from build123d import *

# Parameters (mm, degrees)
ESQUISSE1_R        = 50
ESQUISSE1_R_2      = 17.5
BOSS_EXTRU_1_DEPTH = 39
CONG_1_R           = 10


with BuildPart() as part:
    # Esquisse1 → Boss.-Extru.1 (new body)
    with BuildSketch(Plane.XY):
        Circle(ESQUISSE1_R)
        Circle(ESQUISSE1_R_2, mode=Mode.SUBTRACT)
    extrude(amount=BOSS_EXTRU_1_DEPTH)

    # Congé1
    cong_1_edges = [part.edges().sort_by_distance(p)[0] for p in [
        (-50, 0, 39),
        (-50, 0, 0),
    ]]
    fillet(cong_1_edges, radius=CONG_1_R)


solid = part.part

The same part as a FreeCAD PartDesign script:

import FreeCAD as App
import Part
import Sketcher


def edges_at(feature, points):
    """Names of the edges that pass closest to the given points."""
    edges = feature.Shape.Edges
    near = lambda p: min(range(len(edges)), key=lambda i: edges[i].distToShape(Part.Vertex(*p))[0])
    return sorted({f"Edge{near(p) + 1}" for p in points})

doc = App.newDocument("Part")
params = doc.addObject("Spreadsheet::Sheet", "Params")
for row, (alias, value) in enumerate([
    ("sketch1_diameter", "100 mm"),
    ("sketch1_diameter2", "35 mm"),
    ("pad1_length", "39 mm"),
    ("fillet_radius", "10 mm"),
], start=1):
    params.set(f"A{row}", alias)
    params.set(f"B{row}", "=" + value)
    params.setAlias(f"B{row}", alias)

body = doc.addObject("PartDesign::Body", "Body")

sketch1 = body.newObject("Sketcher::SketchObject", "Sketch")
sketch1.AttachmentSupport = (doc.getObject("XY_Plane"), [""])
sketch1.MapMode = "FlatFace"
sketch1.addGeometry([
    Part.Circle(App.Vector(0, 0, 0), App.Vector(0, 0, 1), 50),
    Part.Circle(App.Vector(0, 0, 0), App.Vector(0, 0, 1), 18),
], False)
sketch1.addConstraint([
    Sketcher.Constraint("Coincident", 0, 3, -1, 1),
    Sketcher.Constraint("Coincident", 1, 3, -1, 1),
    Sketcher.Constraint("Diameter", 0, 100.0),
    Sketcher.Constraint("Diameter", 1, 35.0),
])
sketch1.setExpression("Constraints[2]", "Params.sketch1_diameter")
sketch1.setExpression("Constraints[3]", "Params.sketch1_diameter2")
pad1 = body.newObject("PartDesign::Pad", "Pad")
pad1.Profile = sketch1
pad1.setExpression("Length", "Params.pad1_length")
doc.recompute()

fillet = body.newObject("PartDesign::Fillet", "Fillet")
fillet.Base = (pad1, edges_at(pad1, [(-50, 0, 39), (-50, 0, 0)]))
fillet.setExpression("Radius", "Params.fillet_radius")

doc.recompute()
